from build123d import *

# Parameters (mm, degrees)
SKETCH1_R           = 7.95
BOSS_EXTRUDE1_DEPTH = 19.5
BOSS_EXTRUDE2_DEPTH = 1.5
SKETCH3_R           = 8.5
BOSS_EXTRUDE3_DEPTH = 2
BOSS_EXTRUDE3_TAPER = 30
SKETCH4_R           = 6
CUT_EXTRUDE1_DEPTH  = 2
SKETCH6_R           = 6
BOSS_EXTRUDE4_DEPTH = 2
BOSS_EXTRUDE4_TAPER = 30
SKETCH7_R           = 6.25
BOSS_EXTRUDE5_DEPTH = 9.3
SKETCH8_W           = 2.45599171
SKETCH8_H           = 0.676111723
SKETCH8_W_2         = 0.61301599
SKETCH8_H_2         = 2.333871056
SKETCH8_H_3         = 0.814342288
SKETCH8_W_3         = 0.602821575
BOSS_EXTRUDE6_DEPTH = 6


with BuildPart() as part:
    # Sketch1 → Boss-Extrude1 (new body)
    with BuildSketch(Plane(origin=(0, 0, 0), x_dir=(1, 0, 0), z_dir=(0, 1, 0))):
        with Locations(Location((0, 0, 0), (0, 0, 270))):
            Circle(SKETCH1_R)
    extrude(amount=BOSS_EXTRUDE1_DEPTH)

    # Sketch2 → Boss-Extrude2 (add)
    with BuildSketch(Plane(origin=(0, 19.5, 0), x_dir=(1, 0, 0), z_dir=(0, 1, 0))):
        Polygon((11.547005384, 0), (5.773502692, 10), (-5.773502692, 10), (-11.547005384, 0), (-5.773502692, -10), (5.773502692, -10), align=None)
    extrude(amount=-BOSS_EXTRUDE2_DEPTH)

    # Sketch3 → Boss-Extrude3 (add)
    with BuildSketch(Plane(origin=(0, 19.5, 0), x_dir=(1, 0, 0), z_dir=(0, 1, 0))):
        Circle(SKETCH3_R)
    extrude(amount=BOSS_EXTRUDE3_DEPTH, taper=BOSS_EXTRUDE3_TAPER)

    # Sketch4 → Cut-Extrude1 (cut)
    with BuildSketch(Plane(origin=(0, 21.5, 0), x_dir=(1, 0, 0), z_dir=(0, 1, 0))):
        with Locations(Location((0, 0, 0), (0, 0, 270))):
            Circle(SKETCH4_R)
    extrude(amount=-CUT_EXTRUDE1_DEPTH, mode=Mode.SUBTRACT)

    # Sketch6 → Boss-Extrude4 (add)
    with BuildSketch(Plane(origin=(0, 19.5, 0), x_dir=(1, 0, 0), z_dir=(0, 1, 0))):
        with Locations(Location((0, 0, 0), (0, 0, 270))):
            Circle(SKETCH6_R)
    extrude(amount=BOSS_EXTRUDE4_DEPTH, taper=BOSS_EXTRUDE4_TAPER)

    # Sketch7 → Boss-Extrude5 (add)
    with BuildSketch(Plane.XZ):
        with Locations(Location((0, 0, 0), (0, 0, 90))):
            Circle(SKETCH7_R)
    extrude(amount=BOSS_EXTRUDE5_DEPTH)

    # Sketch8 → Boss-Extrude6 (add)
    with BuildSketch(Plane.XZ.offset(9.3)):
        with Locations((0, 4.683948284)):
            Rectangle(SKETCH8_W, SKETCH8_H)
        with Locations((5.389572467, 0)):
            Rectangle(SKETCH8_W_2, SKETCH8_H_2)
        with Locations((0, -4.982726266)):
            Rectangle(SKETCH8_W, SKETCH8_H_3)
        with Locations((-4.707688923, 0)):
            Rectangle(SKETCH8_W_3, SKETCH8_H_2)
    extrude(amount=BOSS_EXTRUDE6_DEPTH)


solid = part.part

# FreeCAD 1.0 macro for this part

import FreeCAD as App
import Part
import Sketcher
Q = App.Units.Quantity

doc = App.newDocument("Part")
params = doc.addObject("Spreadsheet::Sheet", "Params")
for row, (alias, value) in enumerate([
    ("sketch1_diameter", "15.9 mm"),
    ("pad1_length", "19.5 mm"),
    ("pad2_length", "1.5 mm"),
    ("sketch3_diameter", "17 mm"),
    ("pad3_length", "2 mm"),
    ("pad3_taper", "-30 deg"),
    ("sketch4_diameter", "12 mm"),
    ("pocket1_length", "2 mm"),
    ("sketch5_diameter", "12 mm"),
    ("pad4_length", "2 mm"),
    ("pad4_taper", "-30 deg"),
    ("sketch6_diameter", "12.5 mm"),
    ("pad5_length", "9.3 mm"),
    ("pad6_length", "6 mm"),
], start=1):
    params.set(f"A{row}", alias)
    params.set(f"B{row}", "=" + value)
    params.setAlias(f"B{row}", alias)

body = doc.addObject("PartDesign::Body", "Body")

sketch1 = doc.addObject("Sketcher::SketchObject", "Sketch")
body.addObject(sketch1)
sketch1.AttachmentSupport = (doc.XZ_Plane, [""])
sketch1.MapMode = "FlatFace"
sketch1.addGeometry(Part.Circle(App.Vector(0, 0, 0), App.Vector(0, 0, 1), 8), False)
sketch1.addConstraint(Sketcher.Constraint("Coincident", 0, 3, -1, 1))
sketch1.addConstraint(Sketcher.Constraint("Diameter", 0, Q("15.9 mm")))
sketch1.setExpression("Constraints[1]", "Params.sketch1_diameter")
pad1 = doc.addObject("PartDesign::Pad", "Pad")
body.addObject(pad1)
pad1.Profile = sketch1
pad1.setExpression("Length", "Params.pad1_length")
pad1.Reversed = True

sketch2 = doc.addObject("Sketcher::SketchObject", "Sketch001")
body.addObject(sketch2)
sketch2.AttachmentSupport = (doc.XZ_Plane, [""])
sketch2.MapMode = "FlatFace"
sketch2.AttachmentOffset = App.Placement(App.Vector(0, 0, -19.5), App.Rotation())
sketch2.addGeometry(Part.LineSegment(App.Vector(12, 0, 0), App.Vector(6, -10, 0)), False)
sketch2.addGeometry(Part.LineSegment(App.Vector(6, -10, 0), App.Vector(-6, -10, 0)), False)
sketch2.addGeometry(Part.LineSegment(App.Vector(-6, -10, 0), App.Vector(-12, 0, 0)), False)
sketch2.addGeometry(Part.LineSegment(App.Vector(-12, 0, 0), App.Vector(-6, 10, 0)), False)
sketch2.addGeometry(Part.LineSegment(App.Vector(-6, 10, 0), App.Vector(6, 10, 0)), False)
sketch2.addGeometry(Part.LineSegment(App.Vector(6, 10, 0), App.Vector(12, 0, 0)), False)
sketch2.addConstraint(Sketcher.Constraint("Coincident", 0, 2, 1, 1))
sketch2.addConstraint(Sketcher.Constraint("Coincident", 1, 2, 2, 1))
sketch2.addConstraint(Sketcher.Constraint("Coincident", 2, 2, 3, 1))
sketch2.addConstraint(Sketcher.Constraint("Coincident", 3, 2, 4, 1))
sketch2.addConstraint(Sketcher.Constraint("Coincident", 4, 2, 5, 1))
sketch2.addConstraint(Sketcher.Constraint("Coincident", 5, 2, 0, 1))
sketch2.addConstraint(Sketcher.Constraint("Horizontal", 1))
sketch2.addConstraint(Sketcher.Constraint("Horizontal", 4))
sketch2.addConstraint(Sketcher.Constraint("Symmetric", 0, 2, 3, 2, -1, 1))
sketch2.addConstraint(Sketcher.Constraint("Symmetric", 2, 2, 5, 2, -1, 1))
sketch2.addConstraint(Sketcher.Constraint("PointOnObject", 2, 2, -1))
sketch2.addConstraint(Sketcher.Constraint("Parallel", 2, 5))
sketch2.addConstraint(Sketcher.Constraint("Vertical", 1, 2, 3, 2))
sketch2.addConstraint(Sketcher.Constraint("Angle", 0, Q("-120 deg")))
sketch2.addConstraint(Sketcher.Constraint("DistanceY", 0, 2, -1, 1, Q("10 mm")))
sketch2.addConstraint(Sketcher.Constraint("DistanceX", 1, 2, 1, 1, Q("11.547005 mm")))
pad2 = doc.addObject("PartDesign::Pad", "Pad001")
body.addObject(pad2)
pad2.Profile = sketch2
pad2.setExpression("Length", "Params.pad2_length")

sketch3 = doc.addObject("Sketcher::SketchObject", "Sketch002")
body.addObject(sketch3)
sketch3.AttachmentSupport = (doc.XZ_Plane, [""])
sketch3.MapMode = "FlatFace"
sketch3.AttachmentOffset = App.Placement(App.Vector(0, 0, -19.5), App.Rotation())
sketch3.addGeometry(Part.Circle(App.Vector(0, 0, 0), App.Vector(0, 0, 1), 8), False)
sketch3.addConstraint(Sketcher.Constraint("Coincident", 0, 3, -1, 1))
sketch3.addConstraint(Sketcher.Constraint("Diameter", 0, Q("17 mm")))
sketch3.setExpression("Constraints[1]", "Params.sketch3_diameter")
pad3 = doc.addObject("PartDesign::Pad", "Pad002")
body.addObject(pad3)
pad3.Profile = sketch3
pad3.setExpression("Length", "Params.pad3_length")
pad3.Reversed = True
pad3.setExpression("TaperAngle", "Params.pad3_taper")

sketch4 = doc.addObject("Sketcher::SketchObject", "Sketch003")
body.addObject(sketch4)
sketch4.AttachmentSupport = (doc.XZ_Plane, [""])
sketch4.MapMode = "FlatFace"
sketch4.AttachmentOffset = App.Placement(App.Vector(0, 0, -21.5), App.Rotation())
sketch4.addGeometry(Part.Circle(App.Vector(0, 0, 0), App.Vector(0, 0, 1), 6), False)
sketch4.addConstraint(Sketcher.Constraint("Coincident", 0, 3, -1, 1))
sketch4.addConstraint(Sketcher.Constraint("Diameter", 0, Q("12 mm")))
sketch4.setExpression("Constraints[1]", "Params.sketch4_diameter")
pocket1 = doc.addObject("PartDesign::Pocket", "Pocket")
body.addObject(pocket1)
pocket1.Profile = sketch4
pocket1.setExpression("Length", "Params.pocket1_length")
pocket1.Reversed = True

sketch5 = doc.addObject("Sketcher::SketchObject", "Sketch004")
body.addObject(sketch5)
sketch5.AttachmentSupport = (doc.XZ_Plane, [""])
sketch5.MapMode = "FlatFace"
sketch5.AttachmentOffset = App.Placement(App.Vector(0, 0, -19.5), App.Rotation())
sketch5.addGeometry(Part.Circle(App.Vector(0, 0, 0), App.Vector(0, 0, 1), 6), False)
sketch5.addConstraint(Sketcher.Constraint("Coincident", 0, 3, -1, 1))
sketch5.addConstraint(Sketcher.Constraint("Diameter", 0, Q("12 mm")))
sketch5.setExpression("Constraints[1]", "Params.sketch5_diameter")
pad4 = doc.addObject("PartDesign::Pad", "Pad003")
body.addObject(pad4)
pad4.Profile = sketch5
pad4.setExpression("Length", "Params.pad4_length")
pad4.Reversed = True
pad4.setExpression("TaperAngle", "Params.pad4_taper")

sketch6 = doc.addObject("Sketcher::SketchObject", "Sketch005")
body.addObject(sketch6)
sketch6.AttachmentSupport = (doc.XZ_Plane, [""])
sketch6.MapMode = "FlatFace"
sketch6.addGeometry(Part.Circle(App.Vector(0, 0, 0), App.Vector(0, 0, 1), 6), False)
sketch6.addConstraint(Sketcher.Constraint("Coincident", 0, 3, -1, 1))
sketch6.addConstraint(Sketcher.Constraint("Diameter", 0, Q("12.5 mm")))
sketch6.setExpression("Constraints[1]", "Params.sketch6_diameter")
pad5 = doc.addObject("PartDesign::Pad", "Pad004")
body.addObject(pad5)
pad5.Profile = sketch6
pad5.setExpression("Length", "Params.pad5_length")

sketch7 = doc.addObject("Sketcher::SketchObject", "Sketch006")
body.addObject(sketch7)
sketch7.AttachmentSupport = (doc.XZ_Plane, [""])
sketch7.MapMode = "FlatFace"
sketch7.AttachmentOffset = App.Placement(App.Vector(0, 0, 9.3), App.Rotation())
sketch7.addGeometry(Part.LineSegment(App.Vector(-1.2, 5, 0), App.Vector(-1.2, 4.3, 0)), False)
sketch7.addGeometry(Part.LineSegment(App.Vector(-1.2, 4.3, 0), App.Vector(1.2, 4.3, 0)), False)
sketch7.addGeometry(Part.LineSegment(App.Vector(1.2, 4.3, 0), App.Vector(1.2, 5, 0)), False)
sketch7.addGeometry(Part.LineSegment(App.Vector(1.2, 5, 0), App.Vector(-1.2, 5, 0)), False)
sketch7.addGeometry(Part.LineSegment(App.Vector(5.1, 1.2, 0), App.Vector(5.1, -1.2, 0)), False)
sketch7.addGeometry(Part.LineSegment(App.Vector(5.1, -1.2, 0), App.Vector(5.7, -1.2, 0)), False)
sketch7.addGeometry(Part.LineSegment(App.Vector(5.7, -1.2, 0), App.Vector(5.7, 1.2, 0)), False)
sketch7.addGeometry(Part.LineSegment(App.Vector(5.7, 1.2, 0), App.Vector(5.1, 1.2, 0)), False)
sketch7.addGeometry(Part.LineSegment(App.Vector(-1.2, -4.6, 0), App.Vector(-1.2, -5.4, 0)), False)
sketch7.addGeometry(Part.LineSegment(App.Vector(-1.2, -5.4, 0), App.Vector(1.2, -5.4, 0)), False)
sketch7.addGeometry(Part.LineSegment(App.Vector(1.2, -5.4, 0), App.Vector(1.2, -4.6, 0)), False)
sketch7.addGeometry(Part.LineSegment(App.Vector(1.2, -4.6, 0), App.Vector(-1.2, -4.6, 0)), False)
sketch7.addGeometry(Part.LineSegment(App.Vector(-5, 1.2, 0), App.Vector(-5, -1.2, 0)), False)
sketch7.addGeometry(Part.LineSegment(App.Vector(-5, -1.2, 0), App.Vector(-4.4, -1.2, 0)), False)
sketch7.addGeometry(Part.LineSegment(App.Vector(-4.4, -1.2, 0), App.Vector(-4.4, 1.2, 0)), False)
sketch7.addGeometry(Part.LineSegment(App.Vector(-4.4, 1.2, 0), App.Vector(-5, 1.2, 0)), False)
sketch7.addConstraint(Sketcher.Constraint("Coincident", 0, 2, 1, 1))
sketch7.addConstraint(Sketcher.Constraint("Coincident", 1, 2, 2, 1))
sketch7.addConstraint(Sketcher.Constraint("Coincident", 2, 2, 3, 1))
sketch7.addConstraint(Sketcher.Constraint("Coincident", 3, 2, 0, 1))
sketch7.addConstraint(Sketcher.Constraint("Coincident", 4, 2, 5, 1))
sketch7.addConstraint(Sketcher.Constraint("Coincident", 5, 2, 6, 1))
sketch7.addConstraint(Sketcher.Constraint("Coincident", 6, 2, 7, 1))
sketch7.addConstraint(Sketcher.Constraint("Coincident", 7, 2, 4, 1))
sketch7.addConstraint(Sketcher.Constraint("Coincident", 8, 2, 9, 1))
sketch7.addConstraint(Sketcher.Constraint("Coincident", 9, 2, 10, 1))
sketch7.addConstraint(Sketcher.Constraint("Coincident", 10, 2, 11, 1))
sketch7.addConstraint(Sketcher.Constraint("Coincident", 11, 2, 8, 1))
sketch7.addConstraint(Sketcher.Constraint("Coincident", 12, 2, 13, 1))
sketch7.addConstraint(Sketcher.Constraint("Coincident", 13, 2, 14, 1))
sketch7.addConstraint(Sketcher.Constraint("Coincident", 14, 2, 15, 1))
sketch7.addConstraint(Sketcher.Constraint("Coincident", 15, 2, 12, 1))
sketch7.addConstraint(Sketcher.Constraint("Vertical", 0))
sketch7.addConstraint(Sketcher.Constraint("Horizontal", 1))
sketch7.addConstraint(Sketcher.Constraint("Vertical", 2))
sketch7.addConstraint(Sketcher.Constraint("Horizontal", 3))
sketch7.addConstraint(Sketcher.Constraint("Vertical", 4))
sketch7.addConstraint(Sketcher.Constraint("Horizontal", 5))
sketch7.addConstraint(Sketcher.Constraint("Vertical", 6))
sketch7.addConstraint(Sketcher.Constraint("Horizontal", 7))
sketch7.addConstraint(Sketcher.Constraint("Vertical", 8))
sketch7.addConstraint(Sketcher.Constraint("Horizontal", 9))
sketch7.addConstraint(Sketcher.Constraint("Vertical", 10))
sketch7.addConstraint(Sketcher.Constraint("Horizontal", 11))
sketch7.addConstraint(Sketcher.Constraint("Vertical", 12))
sketch7.addConstraint(Sketcher.Constraint("Horizontal", 13))
sketch7.addConstraint(Sketcher.Constraint("Vertical", 14))
sketch7.addConstraint(Sketcher.Constraint("Horizontal", 15))
sketch7.addConstraint(Sketcher.Constraint("Horizontal", 5, 2, 12, 2))
sketch7.addConstraint(Sketcher.Constraint("Horizontal", 7, 2, 14, 2))
sketch7.addConstraint(Sketcher.Constraint("Vertical", 3, 2, 8, 2))
sketch7.addConstraint(Sketcher.Constraint("Vertical", 2, 2, 9, 2))
sketch7.addConstraint(Sketcher.Constraint("DistanceX", 1, 1, 1, 2, Q("2.455992 mm")))
sketch7.addConstraint(Sketcher.Constraint("DistanceX", 13, 1, 13, 2, Q("0.602822 mm")))
sketch7.addConstraint(Sketcher.Constraint("DistanceY", 0, 2, 0, 1, Q("0.676112 mm")))
sketch7.addConstraint(Sketcher.Constraint("DistanceY", 4, 2, 4, 1, Q("2.333871 mm")))
sketch7.addConstraint(Sketcher.Constraint("DistanceX", 12, 2, -1, 1, Q("5.0091 mm")))
sketch7.addConstraint(Sketcher.Constraint("DistanceX", 5, 1, 5, 2, Q("0.613016 mm")))
sketch7.addConstraint(Sketcher.Constraint("DistanceY", 8, 2, 8, 1, Q("0.814342 mm")))
sketch7.addConstraint(Sketcher.Constraint("DistanceX", -1, 1, 5, 2, Q("5.69608 mm")))
sketch7.addConstraint(Sketcher.Constraint("DistanceX", 1, 2, 4, 2, Q("3.855069 mm")))
sketch7.addConstraint(Sketcher.Constraint("DistanceY", 4, 2, 2, 2, Q("6.18894 mm")))
sketch7.addConstraint(Sketcher.Constraint("DistanceY", 8, 2, 4, 2, Q("4.222962 mm")))
sketch7.addConstraint(Sketcher.Constraint("DistanceY", -1, 1, 0, 2, Q("4.345892 mm")))
pad6 = doc.addObject("PartDesign::Pad", "Pad005")
body.addObject(pad6)
pad6.Profile = sketch7
pad6.setExpression("Length", "Params.pad6_length")

doc.recompute()
